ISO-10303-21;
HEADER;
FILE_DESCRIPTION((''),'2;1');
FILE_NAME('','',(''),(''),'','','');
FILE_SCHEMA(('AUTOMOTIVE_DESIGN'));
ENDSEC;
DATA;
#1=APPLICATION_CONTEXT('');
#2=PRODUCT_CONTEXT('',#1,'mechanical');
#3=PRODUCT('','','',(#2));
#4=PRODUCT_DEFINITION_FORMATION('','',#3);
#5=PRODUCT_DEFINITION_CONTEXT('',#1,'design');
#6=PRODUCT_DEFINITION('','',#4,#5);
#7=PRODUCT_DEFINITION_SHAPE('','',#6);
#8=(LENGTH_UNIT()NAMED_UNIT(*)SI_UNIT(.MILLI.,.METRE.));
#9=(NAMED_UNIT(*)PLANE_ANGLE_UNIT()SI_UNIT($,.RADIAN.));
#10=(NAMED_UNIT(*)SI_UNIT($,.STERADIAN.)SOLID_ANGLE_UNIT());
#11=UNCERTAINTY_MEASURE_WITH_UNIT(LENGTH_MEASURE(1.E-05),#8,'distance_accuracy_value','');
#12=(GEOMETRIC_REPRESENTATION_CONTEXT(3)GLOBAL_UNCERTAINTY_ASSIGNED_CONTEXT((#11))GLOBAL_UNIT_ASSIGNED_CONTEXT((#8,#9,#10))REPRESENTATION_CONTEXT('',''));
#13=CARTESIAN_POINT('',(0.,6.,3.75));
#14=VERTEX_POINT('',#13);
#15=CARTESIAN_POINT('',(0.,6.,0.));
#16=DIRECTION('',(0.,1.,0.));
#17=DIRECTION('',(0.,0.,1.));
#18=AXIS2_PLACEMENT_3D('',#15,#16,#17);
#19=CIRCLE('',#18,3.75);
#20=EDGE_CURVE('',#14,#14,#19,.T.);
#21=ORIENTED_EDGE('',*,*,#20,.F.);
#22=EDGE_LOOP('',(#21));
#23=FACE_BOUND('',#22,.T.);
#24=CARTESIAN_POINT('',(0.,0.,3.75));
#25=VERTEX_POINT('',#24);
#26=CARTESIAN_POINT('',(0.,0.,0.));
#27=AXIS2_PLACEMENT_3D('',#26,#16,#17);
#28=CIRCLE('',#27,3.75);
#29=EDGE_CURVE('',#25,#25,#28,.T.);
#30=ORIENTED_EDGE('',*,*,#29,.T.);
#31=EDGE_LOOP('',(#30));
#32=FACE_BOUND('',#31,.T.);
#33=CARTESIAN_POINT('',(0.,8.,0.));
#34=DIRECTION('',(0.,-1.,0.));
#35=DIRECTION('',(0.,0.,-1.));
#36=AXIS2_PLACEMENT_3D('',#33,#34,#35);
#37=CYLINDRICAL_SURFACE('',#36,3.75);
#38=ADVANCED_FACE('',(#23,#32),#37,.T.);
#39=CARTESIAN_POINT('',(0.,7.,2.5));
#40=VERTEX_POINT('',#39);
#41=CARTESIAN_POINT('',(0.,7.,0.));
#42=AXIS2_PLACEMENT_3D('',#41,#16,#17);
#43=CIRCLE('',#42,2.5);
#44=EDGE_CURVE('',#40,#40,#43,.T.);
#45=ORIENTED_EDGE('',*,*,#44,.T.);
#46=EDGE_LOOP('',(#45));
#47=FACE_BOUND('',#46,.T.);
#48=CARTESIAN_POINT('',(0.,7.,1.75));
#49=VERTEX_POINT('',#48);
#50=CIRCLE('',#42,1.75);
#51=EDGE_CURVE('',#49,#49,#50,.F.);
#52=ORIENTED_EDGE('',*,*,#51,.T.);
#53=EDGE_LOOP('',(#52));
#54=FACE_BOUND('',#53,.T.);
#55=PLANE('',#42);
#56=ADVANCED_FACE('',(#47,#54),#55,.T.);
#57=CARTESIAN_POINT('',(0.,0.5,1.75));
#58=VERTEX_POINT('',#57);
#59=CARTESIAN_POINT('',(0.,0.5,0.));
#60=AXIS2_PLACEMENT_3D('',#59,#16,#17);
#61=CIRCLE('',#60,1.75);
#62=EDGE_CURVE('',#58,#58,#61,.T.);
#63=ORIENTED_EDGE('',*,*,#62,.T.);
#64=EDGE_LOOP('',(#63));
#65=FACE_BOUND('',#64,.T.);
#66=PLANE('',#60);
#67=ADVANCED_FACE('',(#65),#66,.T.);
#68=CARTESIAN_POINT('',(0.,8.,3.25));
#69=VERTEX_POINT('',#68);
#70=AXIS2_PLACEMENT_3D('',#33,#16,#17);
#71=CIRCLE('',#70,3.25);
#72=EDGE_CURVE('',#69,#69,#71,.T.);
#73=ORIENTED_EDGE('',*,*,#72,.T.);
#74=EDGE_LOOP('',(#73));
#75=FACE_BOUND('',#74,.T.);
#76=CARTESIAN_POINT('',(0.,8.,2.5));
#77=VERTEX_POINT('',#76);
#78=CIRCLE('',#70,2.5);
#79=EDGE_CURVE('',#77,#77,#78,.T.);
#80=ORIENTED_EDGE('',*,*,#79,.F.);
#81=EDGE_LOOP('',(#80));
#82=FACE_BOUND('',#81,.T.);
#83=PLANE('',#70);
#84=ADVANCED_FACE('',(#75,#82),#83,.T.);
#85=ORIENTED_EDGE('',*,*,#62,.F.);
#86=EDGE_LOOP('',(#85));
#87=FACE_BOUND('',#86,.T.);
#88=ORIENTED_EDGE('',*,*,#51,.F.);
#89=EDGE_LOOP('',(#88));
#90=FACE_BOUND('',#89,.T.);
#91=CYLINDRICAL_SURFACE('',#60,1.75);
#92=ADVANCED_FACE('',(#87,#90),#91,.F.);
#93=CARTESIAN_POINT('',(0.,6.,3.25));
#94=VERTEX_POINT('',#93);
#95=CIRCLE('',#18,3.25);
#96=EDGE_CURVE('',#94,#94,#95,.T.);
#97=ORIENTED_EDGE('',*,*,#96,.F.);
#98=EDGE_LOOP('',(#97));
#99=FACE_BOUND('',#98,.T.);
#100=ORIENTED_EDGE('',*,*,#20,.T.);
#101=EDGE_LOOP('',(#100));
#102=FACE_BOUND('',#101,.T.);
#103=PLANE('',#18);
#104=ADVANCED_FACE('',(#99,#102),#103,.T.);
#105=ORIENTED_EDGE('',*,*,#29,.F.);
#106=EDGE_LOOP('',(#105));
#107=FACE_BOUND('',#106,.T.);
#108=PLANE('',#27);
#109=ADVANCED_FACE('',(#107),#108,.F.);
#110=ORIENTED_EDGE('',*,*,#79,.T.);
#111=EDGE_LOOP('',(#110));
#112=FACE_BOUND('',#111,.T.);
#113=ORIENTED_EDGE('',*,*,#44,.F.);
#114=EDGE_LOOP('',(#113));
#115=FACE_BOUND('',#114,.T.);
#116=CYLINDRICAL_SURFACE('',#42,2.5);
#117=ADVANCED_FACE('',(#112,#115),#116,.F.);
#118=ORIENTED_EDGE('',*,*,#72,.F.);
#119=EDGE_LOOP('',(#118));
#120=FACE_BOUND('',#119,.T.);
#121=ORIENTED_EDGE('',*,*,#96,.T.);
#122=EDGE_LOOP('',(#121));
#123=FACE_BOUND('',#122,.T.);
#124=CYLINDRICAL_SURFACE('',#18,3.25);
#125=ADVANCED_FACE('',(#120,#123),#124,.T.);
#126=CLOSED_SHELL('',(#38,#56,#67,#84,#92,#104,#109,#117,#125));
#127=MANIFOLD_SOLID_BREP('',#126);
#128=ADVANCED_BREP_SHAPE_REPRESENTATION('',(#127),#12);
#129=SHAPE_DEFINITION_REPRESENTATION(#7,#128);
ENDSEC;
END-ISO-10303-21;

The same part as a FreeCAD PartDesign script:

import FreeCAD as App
import Part
import Sketcher
from FreeCAD import Vector

doc = App.newDocument("Part")
body = doc.addObject("PartDesign::Body", "Body")

sketch1 = body.newObject("Sketcher::SketchObject", "Sketch")
sketch1.AttachmentSupport = (doc.getObject("XZ_Plane"), [""])
sketch1.MapMode = "FlatFace"
sketch1.addGeometry(Part.Circle(Vector(0, 0, 0), Vector(0, 0, 1), 3.8), False)
sketch1.addConstraint([
    Sketcher.Constraint("Coincident", 0, 3, -1, 1),
    Sketcher.Constraint("Diameter", 0, 7.5),
])
pad1 = body.newObject("PartDesign::Pad", "Pad")
pad1.Profile = sketch1
pad1.Length = 8
pad1.Reversed = True

sketch2 = body.newObject("Sketcher::SketchObject", "Sketch001")
sketch2.AttachmentSupport = (doc.getObject("XZ_Plane"), [""])
sketch2.MapMode = "FlatFace"
sketch2.AttachmentOffset = App.Placement(Vector(0, 0, -8), App.Rotation())
sketch2.addGeometry([
    Part.Circle(Vector(0, 0, 0), Vector(0, 0, 1), 3.8),
    Part.Circle(Vector(0, 0, 0), Vector(0, 0, 1), 3.2),
], False)
sketch2.addConstraint([
    Sketcher.Constraint("Coincident", 0, 3, -1, 1),
    Sketcher.Constraint("Coincident", 1, 3, -1, 1),
    Sketcher.Constraint("Diameter", 0, 7.5),
    Sketcher.Constraint("Diameter", 1, 6.5),
])
pocket1 = body.newObject("PartDesign::Pocket", "Pocket")
pocket1.Profile = sketch2
pocket1.Length = 2
pocket1.Reversed = True

sketch3 = body.newObject("Sketcher::SketchObject", "Sketch002")
sketch3.AttachmentSupport = (doc.getObject("XZ_Plane"), [""])
sketch3.MapMode = "FlatFace"
sketch3.AttachmentOffset = App.Placement(Vector(0, 0, -8), App.Rotation())
sketch3.addGeometry(Part.Circle(Vector(0, 0, 0), Vector(0, 0, 1), 1.8), False)
sketch3.addConstraint([
    Sketcher.Constraint("Coincident", 0, 3, -1, 1),
    Sketcher.Constraint("Diameter", 0, 3.5),
])
pocket2 = body.newObject("PartDesign::Pocket", "Pocket001")
pocket2.Profile = sketch3
pocket2.Length = 7.5
pocket2.Reversed = True

sketch4 = body.newObject("Sketcher::SketchObject", "Sketch003")
sketch4.AttachmentSupport = (doc.getObject("XZ_Plane"), [""])
sketch4.MapMode = "FlatFace"
sketch4.AttachmentOffset = App.Placement(Vector(0, 0, -8), App.Rotation())
sketch4.addGeometry(Part.Circle(Vector(0, 0, 0), Vector(0, 0, 1), 2.5), False)
sketch4.addConstraint([
    Sketcher.Constraint("Coincident", 0, 3, -1, 1),
    Sketcher.Constraint("Diameter", 0, 5.0),
])
pocket3 = body.newObject("PartDesign::Pocket", "Pocket002")
pocket3.Profile = sketch4
pocket3.Length = 1
pocket3.Reversed = True

doc.recompute()
